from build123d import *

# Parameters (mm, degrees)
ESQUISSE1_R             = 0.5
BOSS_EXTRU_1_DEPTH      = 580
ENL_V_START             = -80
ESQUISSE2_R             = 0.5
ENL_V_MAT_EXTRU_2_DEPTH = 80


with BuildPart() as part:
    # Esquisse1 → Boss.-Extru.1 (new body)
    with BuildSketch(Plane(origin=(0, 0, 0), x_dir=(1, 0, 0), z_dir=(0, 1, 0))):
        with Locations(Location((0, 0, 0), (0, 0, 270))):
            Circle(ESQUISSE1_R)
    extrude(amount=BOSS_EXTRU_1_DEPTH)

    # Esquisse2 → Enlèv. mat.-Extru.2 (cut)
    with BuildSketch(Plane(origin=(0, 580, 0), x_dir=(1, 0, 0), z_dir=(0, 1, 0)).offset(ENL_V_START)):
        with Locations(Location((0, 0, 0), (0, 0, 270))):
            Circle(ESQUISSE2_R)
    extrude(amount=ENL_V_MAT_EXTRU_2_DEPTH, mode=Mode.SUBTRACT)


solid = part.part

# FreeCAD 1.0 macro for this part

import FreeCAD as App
import Part
import Sketcher

V = App.Vector
Q = App.Units.Quantity

doc = App.newDocument("Part")
body = doc.addObject("PartDesign::Body", "Body")

sketch1 = body.newObject("Sketcher::SketchObject", "Sketch")
sketch1.AttachmentSupport = (doc.getObject("XZ_Plane"), [""])
sketch1.MapMode = "FlatFace"
sketch1.addGeometry(Part.Circle(V(0, 0, 0), V(0, 0, 1), 0.5), False)
sketch1.addConstraint(Sketcher.Constraint("Coincident", 0, 3, -1, 1))
sketch1.addConstraint(Sketcher.Constraint("Diameter", 0, Q("1 mm")))
pad1 = body.newObject("PartDesign::Pad", "Pad")
pad1.Profile = sketch1
pad1.Length = 580
pad1.Reversed = True

sketch2 = body.newObject("Sketcher::SketchObject", "Sketch001")
sketch2.AttachmentSupport = (doc.getObject("XZ_Plane"), [""])
sketch2.MapMode = "FlatFace"
sketch2.AttachmentOffset = App.Placement(V(0, 0, -500), App.Rotation())
sketch2.addGeometry(Part.Circle(V(0, 0, 0), V(0, 0, 1), 0.5), False)
sketch2.addConstraint(Sketcher.Constraint("Coincident", 0, 3, -1, 1))
sketch2.addConstraint(Sketcher.Constraint("Diameter", 0, Q("1 mm")))
pocket1 = body.newObject("PartDesign::Pocket", "Pocket")
pocket1.Profile = sketch2
pocket1.Length = 80

doc.recompute()
